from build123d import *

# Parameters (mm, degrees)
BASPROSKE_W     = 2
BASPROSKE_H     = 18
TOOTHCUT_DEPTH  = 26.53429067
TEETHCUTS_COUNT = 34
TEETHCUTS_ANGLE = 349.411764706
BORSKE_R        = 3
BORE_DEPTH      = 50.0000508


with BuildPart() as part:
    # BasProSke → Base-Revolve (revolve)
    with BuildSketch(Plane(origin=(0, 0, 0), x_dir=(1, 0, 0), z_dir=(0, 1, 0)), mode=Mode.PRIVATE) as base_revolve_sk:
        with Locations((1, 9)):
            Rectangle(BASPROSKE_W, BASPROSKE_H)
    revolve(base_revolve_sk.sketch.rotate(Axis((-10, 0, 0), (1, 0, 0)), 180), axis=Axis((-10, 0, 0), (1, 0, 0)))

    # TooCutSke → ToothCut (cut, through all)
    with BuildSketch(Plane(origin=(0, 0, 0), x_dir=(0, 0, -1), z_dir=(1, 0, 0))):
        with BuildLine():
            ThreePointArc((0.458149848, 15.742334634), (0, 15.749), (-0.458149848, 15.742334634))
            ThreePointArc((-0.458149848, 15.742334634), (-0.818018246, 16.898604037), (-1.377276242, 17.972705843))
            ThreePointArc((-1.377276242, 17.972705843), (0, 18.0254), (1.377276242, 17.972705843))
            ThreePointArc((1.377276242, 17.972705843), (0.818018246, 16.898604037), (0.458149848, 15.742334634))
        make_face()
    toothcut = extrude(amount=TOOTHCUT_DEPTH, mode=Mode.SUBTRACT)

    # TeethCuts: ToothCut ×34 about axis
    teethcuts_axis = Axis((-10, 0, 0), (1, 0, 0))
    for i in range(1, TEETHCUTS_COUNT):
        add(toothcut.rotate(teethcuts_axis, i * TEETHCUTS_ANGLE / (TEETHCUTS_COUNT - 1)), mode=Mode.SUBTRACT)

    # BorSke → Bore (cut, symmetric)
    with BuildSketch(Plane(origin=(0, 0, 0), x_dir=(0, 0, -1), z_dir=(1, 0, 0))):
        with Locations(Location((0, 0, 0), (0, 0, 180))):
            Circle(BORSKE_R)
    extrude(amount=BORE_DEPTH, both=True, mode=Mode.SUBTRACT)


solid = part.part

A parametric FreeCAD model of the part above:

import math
import FreeCAD as App
import Part
import Sketcher
Q = App.Units.Quantity


def add_polygon(sketch, points):
    """Adds a closed chain of lines whose ends are joined by coincident constraints."""
    first, n = sketch.GeometryCount, len(points)
    for a, b in zip(points, points[1:] + points[:1]):
        sketch.addGeometry(Part.LineSegment(App.Vector(*a, 0), App.Vector(*b, 0)), False)
    for i in range(n):
        sketch.addConstraint(Sketcher.Constraint("Coincident", first + i, 2, first + (i + 1) % n, 1))

doc = App.newDocument("Part")
body = doc.addObject("PartDesign::Body", "Body")

# Sketch on XZ plane
sketch1 = body.newObject("Sketcher::SketchObject", "Sketch")
sketch1.AttachmentSupport = (doc.getObject("XZ_Plane"), [""])
sketch1.MapMode = "FlatFace"
add_polygon(sketch1, [(0, -18), (0, 0), (2, 0), (2, -18)])  # lines 0-3
sketch1.addConstraint([
    Sketcher.Constraint("Vertical", 0),
    Sketcher.Constraint("Horizontal", 1),
    Sketcher.Constraint("Vertical", 2),
    Sketcher.Constraint("Horizontal", 3),
    Sketcher.Constraint("Coincident", 0, 2, -1, 1),
    Sketcher.Constraint("DistanceX", 1, 1, 1, 2, Q("2 mm")),
    Sketcher.Constraint("DistanceY", 0, 1, 0, 2, Q("18 mm")),
])
revolution = body.newObject("PartDesign::Revolution", "Revolution")
revolution.Profile = sketch1
revolution.ReferenceAxis = (sketch1, ["H_Axis"])
revolution.Angle = 360

# Sketch on YZ plane
sketch2 = body.newObject("Sketcher::SketchObject", "Sketch001")
sketch2.AttachmentSupport = (doc.getObject("YZ_Plane"), [""])
sketch2.MapMode = "FlatFace"
sketch2.addGeometry([
    Part.ArcOfCircle(Part.Circle(App.Vector(0, 0, 0), App.Vector(0, 0, 1), 15.7), math.radians(-1.67), math.radians(1.67)),
    Part.ArcOfCircle(Part.Circle(App.Vector(14.3, -7.1, 0), App.Vector(0, 0, 1), 6.8), math.radians(57), math.radians(78)),
    Part.ArcOfCircle(Part.Circle(App.Vector(0, 0, 0), App.Vector(0, 0, 1), 18), math.radians(-4.38), math.radians(4.38)),
    Part.ArcOfCircle(Part.Circle(App.Vector(14.3, 7.1, 0), App.Vector(0, 0, 1), 6.8), math.radians(-78), math.radians(-57)),
], False)
sketch2.addConstraint([
    Sketcher.Constraint("Coincident", 0, 1, 1, 2),
    Sketcher.Constraint("Coincident", 1, 1, 2, 1),
    Sketcher.Constraint("Coincident", 2, 2, 3, 2),
    Sketcher.Constraint("Coincident", 3, 1, 0, 2),
    Sketcher.Constraint("Coincident", 0, 3, -1, 1),
    Sketcher.Constraint("Coincident", 2, 3, -1, 1),
    Sketcher.Constraint("Equal", 1, 3),
    Sketcher.Constraint("Symmetric", 1, 3, 3, 3, -1),
    Sketcher.Constraint("Radius", 1, Q("6.8 mm")),
    Sketcher.Constraint("Radius", 0, Q("15.749001 mm")),
    Sketcher.Constraint("Radius", 2, Q("18.0254 mm")),
    Sketcher.Constraint("DistanceY", 0, 1, 3, 1, Q("0.9163 mm")),
    Sketcher.Constraint("DistanceX", 1, 3, 0, 1, Q("1.434608 mm")),
])
pocket1 = body.newObject("PartDesign::Pocket", "Pocket")
pocket1.Profile = sketch2
pocket1.Type = "ThroughAll"
pocket1.Reversed = True
doc.recompute()

polarpattern = body.newObject("PartDesign::PolarPattern", "PolarPattern")
polarpattern.Originals = [pocket1]
polarpattern.Axis = (doc.getObject("X_Axis"), [""])
polarpattern.Angle = 360
polarpattern.Occurrences = 34
body.Tip = polarpattern

# Sketch on YZ plane
sketch3 = body.newObject("Sketcher::SketchObject", "Sketch002")
sketch3.AttachmentSupport = (doc.getObject("YZ_Plane"), [""])
sketch3.MapMode = "FlatFace"
sketch3.addGeometry(Part.Circle(App.Vector(0, 0, 0), App.Vector(0, 0, 1), 3), False)
sketch3.addConstraint([
    Sketcher.Constraint("Coincident", 0, 3, -1, 1),
    Sketcher.Constraint("Diameter", 0, Q("6 mm")),
])
pocket2 = body.newObject("PartDesign::Pocket", "Pocket001")
pocket2.Profile = sketch3
pocket2.Length = 100.000102
pocket2.Midplane = True

doc.recompute()
